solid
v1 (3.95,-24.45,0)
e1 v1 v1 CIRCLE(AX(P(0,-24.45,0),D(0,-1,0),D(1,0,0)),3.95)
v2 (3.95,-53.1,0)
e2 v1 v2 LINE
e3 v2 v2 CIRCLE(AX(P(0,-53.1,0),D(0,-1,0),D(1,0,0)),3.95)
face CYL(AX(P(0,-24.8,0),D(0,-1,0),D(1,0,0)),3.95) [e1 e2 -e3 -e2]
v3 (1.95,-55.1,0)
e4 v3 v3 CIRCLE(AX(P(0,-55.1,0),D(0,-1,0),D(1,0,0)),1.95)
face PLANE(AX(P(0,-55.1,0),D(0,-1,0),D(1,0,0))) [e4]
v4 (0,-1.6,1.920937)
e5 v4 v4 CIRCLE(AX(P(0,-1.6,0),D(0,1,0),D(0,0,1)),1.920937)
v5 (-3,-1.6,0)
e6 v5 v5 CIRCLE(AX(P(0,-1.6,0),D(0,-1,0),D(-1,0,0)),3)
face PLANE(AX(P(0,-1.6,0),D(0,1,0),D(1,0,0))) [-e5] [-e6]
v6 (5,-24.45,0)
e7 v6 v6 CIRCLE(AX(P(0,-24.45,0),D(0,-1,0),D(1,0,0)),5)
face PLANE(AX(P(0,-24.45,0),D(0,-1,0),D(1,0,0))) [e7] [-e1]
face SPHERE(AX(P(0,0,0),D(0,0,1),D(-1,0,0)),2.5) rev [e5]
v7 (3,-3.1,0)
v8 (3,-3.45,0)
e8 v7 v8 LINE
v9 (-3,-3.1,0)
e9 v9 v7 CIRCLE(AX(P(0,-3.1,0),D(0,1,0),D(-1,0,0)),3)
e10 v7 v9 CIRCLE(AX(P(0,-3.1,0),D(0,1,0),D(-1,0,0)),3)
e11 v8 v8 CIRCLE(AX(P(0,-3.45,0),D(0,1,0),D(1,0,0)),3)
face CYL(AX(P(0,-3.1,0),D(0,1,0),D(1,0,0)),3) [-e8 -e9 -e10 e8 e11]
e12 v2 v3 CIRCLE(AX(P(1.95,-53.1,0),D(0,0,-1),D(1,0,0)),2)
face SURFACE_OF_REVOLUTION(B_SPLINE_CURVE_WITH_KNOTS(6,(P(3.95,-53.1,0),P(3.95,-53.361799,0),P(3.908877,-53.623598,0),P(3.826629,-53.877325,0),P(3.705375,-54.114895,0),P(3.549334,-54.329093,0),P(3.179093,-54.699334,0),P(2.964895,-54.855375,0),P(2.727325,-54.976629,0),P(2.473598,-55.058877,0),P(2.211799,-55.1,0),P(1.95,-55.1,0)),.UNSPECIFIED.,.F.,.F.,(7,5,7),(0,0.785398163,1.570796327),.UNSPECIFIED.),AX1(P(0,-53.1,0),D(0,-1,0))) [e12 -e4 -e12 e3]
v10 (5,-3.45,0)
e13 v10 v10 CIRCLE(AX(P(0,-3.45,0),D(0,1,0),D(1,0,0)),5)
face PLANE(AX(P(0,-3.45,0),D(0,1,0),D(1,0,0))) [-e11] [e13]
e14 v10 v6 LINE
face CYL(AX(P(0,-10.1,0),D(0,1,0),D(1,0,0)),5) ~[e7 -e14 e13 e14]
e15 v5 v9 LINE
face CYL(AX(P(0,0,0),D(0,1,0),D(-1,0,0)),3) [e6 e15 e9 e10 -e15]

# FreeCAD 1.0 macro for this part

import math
import FreeCAD as App
import Part
import Sketcher
from FreeCAD import Vector
Q = App.Units.Quantity


def edges_at(feature, points):
    """Names of the edges that pass closest to the given points."""
    edges = feature.Shape.Edges
    near = lambda p: min(range(len(edges)), key=lambda i: edges[i].distToShape(Part.Vertex(*p))[0])
    return sorted({f"Edge{near(p) + 1}" for p in points})

doc = App.newDocument("Part")
body = doc.addObject("PartDesign::Body", "Body")

sketch1 = body.newObject("Sketcher::SketchObject", "Sketch")
sketch1.AttachmentSupport = (doc.getObject("XZ_Plane"), [""])
sketch1.MapMode = "FlatFace"
sketch1.addGeometry(Part.Circle(Vector(0, 0, 0), Vector(0, 0, 1), 3), False)
sketch1.addConstraint([
    Sketcher.Constraint("Coincident", 0, 3, -1, 1),
    Sketcher.Constraint("Diameter", 0, Q("6 mm")),
])
pad1 = body.newObject("PartDesign::Pad", "Pad")
pad1.Profile = sketch1
pad1.Length = 15

sketch2 = body.newObject("Sketcher::SketchObject", "Sketch001")
sketch2.AttachmentSupport = (doc.getObject("XZ_Plane"), [""])
sketch2.MapMode = "FlatFace"
sketch2.addGeometry([
    Part.ArcOfCircle(Part.Circle(Vector(0, 0, 0), Vector(0, 0, 1), 2.5), math.radians(90), math.radians(270)),
    Part.LineSegment(Vector(0, 2.5, 0), Vector(0, -2.5, 0)),
], False)
sketch2.addConstraint([
    Sketcher.Constraint("Coincident", 0, 1, 1, 1),
    Sketcher.Constraint("Coincident", 1, 2, 0, 2),
    Sketcher.Constraint("Vertical", 1),
    Sketcher.Constraint("Coincident", 0, 3, -1, 1),
    Sketcher.Constraint("PointOnObject", 0, 1, -2),
    Sketcher.Constraint("Radius", 0, Q("2.5 mm")),
])
groove = body.newObject("PartDesign::Groove", "Groove")
groove.Profile = sketch2
groove.ReferenceAxis = (sketch2, ["V_Axis"])
groove.Angle = 360

sketch3 = body.newObject("Sketcher::SketchObject", "Sketch002")
sketch3.AttachmentSupport = (doc.getObject("XZ_Plane"), [""])
sketch3.MapMode = "FlatFace"
sketch3.addGeometry(Part.Circle(Vector(0, 0, 0), Vector(0, 0, 1), 3), False)
sketch3.addConstraint([
    Sketcher.Constraint("Coincident", 0, 3, -1, 1),
    Sketcher.Constraint("Diameter", 0, Q("6 mm")),
])
pocket1 = body.newObject("PartDesign::Pocket", "Pocket")
pocket1.Profile = sketch3
pocket1.Length = 1.1
pocket1.Reversed = True

sketch4 = body.newObject("Sketcher::SketchObject", "Sketch003")
sketch4.AttachmentSupport = (doc.getObject("XZ_Plane"), [""])
sketch4.MapMode = "FlatFace"
sketch4.AttachmentOffset = App.Placement(Vector(0, 0, 15), App.Rotation())
sketch4.addGeometry([
    Part.Circle(Vector(0, 0, 0), Vector(0, 0, 1), 5),
    Part.Circle(Vector(0, 0, 0), Vector(0, 0, 1), 3),
], False)
sketch4.addConstraint([
    Sketcher.Constraint("Coincident", 0, 3, -1, 1),
    Sketcher.Constraint("Coincident", 1, 3, -1, 1),
    Sketcher.Constraint("Diameter", 0, Q("10 mm")),
    Sketcher.Constraint("Diameter", 1, Q("6 mm")),
])
pad2 = body.newObject("PartDesign::Pad", "Pad001")
pad2.Profile = sketch4
pad2.Length = 10
pad2.Reversed = True

sketch5 = body.newObject("Sketcher::SketchObject", "Sketch004")
sketch5.AttachmentSupport = (doc.getObject("XZ_Plane"), [""])
sketch5.MapMode = "FlatFace"
sketch5.AttachmentOffset = App.Placement(Vector(0, 0, 15), App.Rotation())
sketch5.addGeometry(Part.Circle(Vector(0, 0, 0), Vector(0, 0, 1), 5), False)
sketch5.addConstraint([
    Sketcher.Constraint("Coincident", 0, 3, -1, 1),
    Sketcher.Constraint("Diameter", 0, Q("10 mm")),
])
pocket2 = body.newObject("PartDesign::Pocket", "Pocket001")
pocket2.Profile = sketch5
pocket2.Length = 5

sketch6 = body.newObject("Sketcher::SketchObject", "Sketch005")
sketch6.AttachmentSupport = (doc.getObject("XZ_Plane"), [""])
sketch6.MapMode = "FlatFace"
sketch6.AttachmentOffset = App.Placement(Vector(0, 0, 10), App.Rotation())
sketch6.addGeometry(Part.Circle(Vector(0, 0, 0), Vector(0, 0, 1), 3.95), False)
sketch6.addConstraint([
    Sketcher.Constraint("Coincident", 0, 3, -1, 1),
    Sketcher.Constraint("Diameter", 0, Q("7.9 mm")),
])
pad3 = body.newObject("PartDesign::Pad", "Pad002")
pad3.Profile = sketch6
pad3.Length = 45

sketch7 = body.newObject("Sketcher::SketchObject", "Sketch006")
sketch7.AttachmentSupport = (doc.getObject("XZ_Plane"), [""])
sketch7.MapMode = "FlatFace"
sketch7.AttachmentOffset = App.Placement(Vector(0, 0, 5), App.Rotation())
sketch7.addGeometry([
    Part.Circle(Vector(0, 0, 0), Vector(0, 0, 1), 5),
    Part.Circle(Vector(0, 0, 0), Vector(0, 0, 1), 3),
], False)
sketch7.addConstraint([
    Sketcher.Constraint("Coincident", 0, 3, -1, 1),
    Sketcher.Constraint("Coincident", 1, 3, -1, 1),
    Sketcher.Constraint("Diameter", 0, Q("10 mm")),
    Sketcher.Constraint("Diameter", 1, Q("6 mm")),
])
pocket3 = body.newObject("PartDesign::Pocket", "Pocket002")
pocket3.Profile = sketch7
pocket3.Length = 0.1
pocket3.Reversed = True

sketch8 = body.newObject("Sketcher::SketchObject", "Sketch007")
sketch8.AttachmentSupport = (doc.getObject("XZ_Plane"), [""])
sketch8.MapMode = "FlatFace"
sketch8.AttachmentOffset = App.Placement(Vector(0, 0, 10), App.Rotation())
sketch8.addGeometry([
    Part.Circle(Vector(0, 0, 0), Vector(0, 0, 1), 5),
    Part.Circle(Vector(0, 0, 0), Vector(0, 0, 1), 3.95),
], False)
sketch8.addConstraint([
    Sketcher.Constraint("Coincident", 0, 3, -1, 1),
    Sketcher.Constraint("Coincident", 1, 3, -1, 1),
    Sketcher.Constraint("Diameter", 0, Q("10 mm")),
    Sketcher.Constraint("Diameter", 1, Q("7.9 mm")),
])
pad4 = body.newObject("PartDesign::Pad", "Pad003")
pad4.Profile = sketch8
pad4.Length = 0.1

sketch9 = body.newObject("Sketcher::SketchObject", "Sketch008")
sketch9.AttachmentSupport = (doc.getObject("XZ_Plane"), [""])
sketch9.MapMode = "FlatFace"
sketch9.AttachmentOffset = App.Placement(Vector(0, 0, 55), App.Rotation())
sketch9.addGeometry(Part.Circle(Vector(0, 0, 0), Vector(0, 0, 1), 3.95), False)
sketch9.addConstraint([
    Sketcher.Constraint("Coincident", 0, 3, -1, 1),
    Sketcher.Constraint("Diameter", 0, Q("7.9 mm")),
])
pad5 = body.newObject("PartDesign::Pad", "Pad004")
pad5.Profile = sketch9
pad5.Length = 0.1

sketch10 = body.newObject("Sketcher::SketchObject", "Sketch009")
sketch10.AttachmentSupport = (doc.getObject("XZ_Plane"), [""])
sketch10.MapMode = "FlatFace"
sketch10.AttachmentOffset = App.Placement(Vector(0, 0, 5.1), App.Rotation())
sketch10.addGeometry(Part.Circle(Vector(0, 0, 0), Vector(0, 0, 1), 5), False)
sketch10.addConstraint([
    Sketcher.Constraint("Coincident", 0, 3, -1, 1),
    Sketcher.Constraint("Diameter", 0, Q("10 mm")),
])
pad6 = body.newObject("PartDesign::Pad", "Pad005")
pad6.Profile = sketch10
pad6.Length = 2
pad6.Reversed = True

sketch11 = body.newObject("Sketcher::SketchObject", "Sketch010")
sketch11.AttachmentSupport = (doc.getObject("XZ_Plane"), [""])
sketch11.MapMode = "FlatFace"
sketch11.AttachmentOffset = App.Placement(Vector(0, 0, 10.1), App.Rotation())
sketch11.addGeometry([
    Part.Circle(Vector(0, 0, 0), Vector(0, 0, 1), 5),
    Part.Circle(Vector(0, 0, 0), Vector(0, 0, 1), 3.95),
], False)
sketch11.addConstraint([
    Sketcher.Constraint("Coincident", 0, 3, -1, 1),
    Sketcher.Constraint("Coincident", 1, 3, -1, 1),
    Sketcher.Constraint("Diameter", 0, Q("10 mm")),
    Sketcher.Constraint("Diameter", 1, Q("7.9 mm")),
])
pocket4 = body.newObject("PartDesign::Pocket", "Pocket003")
pocket4.Profile = sketch11
pocket4.Length = 2

sketch12 = body.newObject("Sketcher::SketchObject", "Sketch011")
sketch12.AttachmentSupport = (doc.getObject("XZ_Plane"), [""])
sketch12.MapMode = "FlatFace"
sketch12.AttachmentOffset = App.Placement(Vector(0, 0, 10.1), App.Rotation())
sketch12.addGeometry([
    Part.Circle(Vector(0, 0, 0), Vector(0, 0, 1), 5),
    Part.Circle(Vector(0, 0, 0), Vector(0, 0, 1), 3.95),
], False)
sketch12.addConstraint([
    Sketcher.Constraint("Coincident", 0, 3, -1, 1),
    Sketcher.Constraint("Coincident", 1, 3, -1, 1),
    Sketcher.Constraint("Diameter", 0, Q("10 mm")),
    Sketcher.Constraint("Diameter", 1, Q("7.9 mm")),
])
pad7 = body.newObject("PartDesign::Pad", "Pad006")
pad7.Profile = sketch12
pad7.Length = 2
pad7.Reversed = True

sketch13 = body.newObject("Sketcher::SketchObject", "Sketch012")
sketch13.AttachmentSupport = (doc.getObject("XZ_Plane"), [""])
sketch13.MapMode = "FlatFace"
sketch13.AttachmentOffset = App.Placement(Vector(0, 0, 10.1), App.Rotation())
sketch13.addGeometry([
    Part.Circle(Vector(0, 0, 0), Vector(0, 0, 1), 5),
    Part.Circle(Vector(0, 0, 0), Vector(0, 0, 1), 3.95),
], False)
sketch13.addConstraint([
    Sketcher.Constraint("Coincident", 0, 3, -1, 1),
    Sketcher.Constraint("Coincident", 1, 3, -1, 1),
    Sketcher.Constraint("Diameter", 0, Q("10 mm")),
    Sketcher.Constraint("Diameter", 1, Q("7.9 mm")),
])
pad8 = body.newObject("PartDesign::Pad", "Pad007")
pad8.Profile = sketch13
pad8.Length = 14.7

sketch14 = body.newObject("Sketcher::SketchObject", "Sketch013")
sketch14.AttachmentSupport = (doc.getObject("XZ_Plane"), [""])
sketch14.MapMode = "FlatFace"
sketch14.AttachmentOffset = App.Placement(Vector(0, 0, 1.1), App.Rotation())
sketch14.addGeometry(Part.Circle(Vector(0, 0, 0), Vector(0, 0, 1), 3), False)
sketch14.addConstraint([
    Sketcher.Constraint("Coincident", 0, 3, -1, 1),
    Sketcher.Constraint("Diameter", 0, Q("6 mm")),
])
pocket5 = body.newObject("PartDesign::Pocket", "Pocket004")
pocket5.Profile = sketch14
pocket5.Length = 0.3
pocket5.Reversed = True

sketch15 = body.newObject("Sketcher::SketchObject", "Sketch014")
sketch15.AttachmentSupport = (doc.getObject("XZ_Plane"), [""])
sketch15.MapMode = "FlatFace"
sketch15.AttachmentOffset = App.Placement(Vector(0, 0, 3.1), App.Rotation())
sketch15.addGeometry([
    Part.Circle(Vector(0, 0, 0), Vector(0, 0, 1), 5),
    Part.Circle(Vector(0, 0, 0), Vector(0, 0, 1), 3),
], False)
sketch15.addConstraint([
    Sketcher.Constraint("Coincident", 0, 3, -1, 1),
    Sketcher.Constraint("Coincident", 1, 3, -1, 1),
    Sketcher.Constraint("Diameter", 0, Q("10 mm")),
    Sketcher.Constraint("Diameter", 1, Q("6 mm")),
])
pocket6 = body.newObject("PartDesign::Pocket", "Pocket005")
pocket6.Profile = sketch15
pocket6.Length = 0.35
pocket6.Reversed = True

sketch16 = body.newObject("Sketcher::SketchObject", "Sketch015")
sketch16.AttachmentSupport = (doc.getObject("XZ_Plane"), [""])
sketch16.MapMode = "FlatFace"
sketch16.AttachmentOffset = App.Placement(Vector(0, 0, 24.8), App.Rotation())
sketch16.addGeometry([
    Part.Circle(Vector(0, 0, 0), Vector(0, 0, 1), 5),
    Part.Circle(Vector(0, 0, 0), Vector(0, 0, 1), 3.95),
], False)
sketch16.addConstraint([
    Sketcher.Constraint("Coincident", 0, 3, -1, 1),
    Sketcher.Constraint("Coincident", 1, 3, -1, 1),
    Sketcher.Constraint("Diameter", 0, Q("10 mm")),
    Sketcher.Constraint("Diameter", 1, Q("7.9 mm")),
])
pocket7 = body.newObject("PartDesign::Pocket", "Pocket006")
pocket7.Profile = sketch16
pocket7.Length = 0.35

sketch17 = body.newObject("Sketcher::SketchObject", "Sketch016")
sketch17.AttachmentSupport = (doc.getObject("XZ_Plane"), [""])
sketch17.MapMode = "FlatFace"
sketch17.AttachmentOffset = App.Placement(Vector(0, 0, 1.4), App.Rotation())
sketch17.addGeometry(Part.Circle(Vector(0, 0, 0), Vector(0, 0, 1), 3), False)
sketch17.addConstraint([
    Sketcher.Constraint("Coincident", 0, 3, -1, 1),
    Sketcher.Constraint("Diameter", 0, Q("6 mm")),
])
pocket8 = body.newObject("PartDesign::Pocket", "Pocket007")
pocket8.Profile = sketch17
pocket8.Length = 0.2
pocket8.Reversed = True
doc.recompute()

fillet = body.newObject("PartDesign::Fillet", "Fillet")
fillet.Base = (pocket8, edges_at(pocket8, [(-3.95, -55.1, 0)]))
fillet.Radius = 2

doc.recompute()
